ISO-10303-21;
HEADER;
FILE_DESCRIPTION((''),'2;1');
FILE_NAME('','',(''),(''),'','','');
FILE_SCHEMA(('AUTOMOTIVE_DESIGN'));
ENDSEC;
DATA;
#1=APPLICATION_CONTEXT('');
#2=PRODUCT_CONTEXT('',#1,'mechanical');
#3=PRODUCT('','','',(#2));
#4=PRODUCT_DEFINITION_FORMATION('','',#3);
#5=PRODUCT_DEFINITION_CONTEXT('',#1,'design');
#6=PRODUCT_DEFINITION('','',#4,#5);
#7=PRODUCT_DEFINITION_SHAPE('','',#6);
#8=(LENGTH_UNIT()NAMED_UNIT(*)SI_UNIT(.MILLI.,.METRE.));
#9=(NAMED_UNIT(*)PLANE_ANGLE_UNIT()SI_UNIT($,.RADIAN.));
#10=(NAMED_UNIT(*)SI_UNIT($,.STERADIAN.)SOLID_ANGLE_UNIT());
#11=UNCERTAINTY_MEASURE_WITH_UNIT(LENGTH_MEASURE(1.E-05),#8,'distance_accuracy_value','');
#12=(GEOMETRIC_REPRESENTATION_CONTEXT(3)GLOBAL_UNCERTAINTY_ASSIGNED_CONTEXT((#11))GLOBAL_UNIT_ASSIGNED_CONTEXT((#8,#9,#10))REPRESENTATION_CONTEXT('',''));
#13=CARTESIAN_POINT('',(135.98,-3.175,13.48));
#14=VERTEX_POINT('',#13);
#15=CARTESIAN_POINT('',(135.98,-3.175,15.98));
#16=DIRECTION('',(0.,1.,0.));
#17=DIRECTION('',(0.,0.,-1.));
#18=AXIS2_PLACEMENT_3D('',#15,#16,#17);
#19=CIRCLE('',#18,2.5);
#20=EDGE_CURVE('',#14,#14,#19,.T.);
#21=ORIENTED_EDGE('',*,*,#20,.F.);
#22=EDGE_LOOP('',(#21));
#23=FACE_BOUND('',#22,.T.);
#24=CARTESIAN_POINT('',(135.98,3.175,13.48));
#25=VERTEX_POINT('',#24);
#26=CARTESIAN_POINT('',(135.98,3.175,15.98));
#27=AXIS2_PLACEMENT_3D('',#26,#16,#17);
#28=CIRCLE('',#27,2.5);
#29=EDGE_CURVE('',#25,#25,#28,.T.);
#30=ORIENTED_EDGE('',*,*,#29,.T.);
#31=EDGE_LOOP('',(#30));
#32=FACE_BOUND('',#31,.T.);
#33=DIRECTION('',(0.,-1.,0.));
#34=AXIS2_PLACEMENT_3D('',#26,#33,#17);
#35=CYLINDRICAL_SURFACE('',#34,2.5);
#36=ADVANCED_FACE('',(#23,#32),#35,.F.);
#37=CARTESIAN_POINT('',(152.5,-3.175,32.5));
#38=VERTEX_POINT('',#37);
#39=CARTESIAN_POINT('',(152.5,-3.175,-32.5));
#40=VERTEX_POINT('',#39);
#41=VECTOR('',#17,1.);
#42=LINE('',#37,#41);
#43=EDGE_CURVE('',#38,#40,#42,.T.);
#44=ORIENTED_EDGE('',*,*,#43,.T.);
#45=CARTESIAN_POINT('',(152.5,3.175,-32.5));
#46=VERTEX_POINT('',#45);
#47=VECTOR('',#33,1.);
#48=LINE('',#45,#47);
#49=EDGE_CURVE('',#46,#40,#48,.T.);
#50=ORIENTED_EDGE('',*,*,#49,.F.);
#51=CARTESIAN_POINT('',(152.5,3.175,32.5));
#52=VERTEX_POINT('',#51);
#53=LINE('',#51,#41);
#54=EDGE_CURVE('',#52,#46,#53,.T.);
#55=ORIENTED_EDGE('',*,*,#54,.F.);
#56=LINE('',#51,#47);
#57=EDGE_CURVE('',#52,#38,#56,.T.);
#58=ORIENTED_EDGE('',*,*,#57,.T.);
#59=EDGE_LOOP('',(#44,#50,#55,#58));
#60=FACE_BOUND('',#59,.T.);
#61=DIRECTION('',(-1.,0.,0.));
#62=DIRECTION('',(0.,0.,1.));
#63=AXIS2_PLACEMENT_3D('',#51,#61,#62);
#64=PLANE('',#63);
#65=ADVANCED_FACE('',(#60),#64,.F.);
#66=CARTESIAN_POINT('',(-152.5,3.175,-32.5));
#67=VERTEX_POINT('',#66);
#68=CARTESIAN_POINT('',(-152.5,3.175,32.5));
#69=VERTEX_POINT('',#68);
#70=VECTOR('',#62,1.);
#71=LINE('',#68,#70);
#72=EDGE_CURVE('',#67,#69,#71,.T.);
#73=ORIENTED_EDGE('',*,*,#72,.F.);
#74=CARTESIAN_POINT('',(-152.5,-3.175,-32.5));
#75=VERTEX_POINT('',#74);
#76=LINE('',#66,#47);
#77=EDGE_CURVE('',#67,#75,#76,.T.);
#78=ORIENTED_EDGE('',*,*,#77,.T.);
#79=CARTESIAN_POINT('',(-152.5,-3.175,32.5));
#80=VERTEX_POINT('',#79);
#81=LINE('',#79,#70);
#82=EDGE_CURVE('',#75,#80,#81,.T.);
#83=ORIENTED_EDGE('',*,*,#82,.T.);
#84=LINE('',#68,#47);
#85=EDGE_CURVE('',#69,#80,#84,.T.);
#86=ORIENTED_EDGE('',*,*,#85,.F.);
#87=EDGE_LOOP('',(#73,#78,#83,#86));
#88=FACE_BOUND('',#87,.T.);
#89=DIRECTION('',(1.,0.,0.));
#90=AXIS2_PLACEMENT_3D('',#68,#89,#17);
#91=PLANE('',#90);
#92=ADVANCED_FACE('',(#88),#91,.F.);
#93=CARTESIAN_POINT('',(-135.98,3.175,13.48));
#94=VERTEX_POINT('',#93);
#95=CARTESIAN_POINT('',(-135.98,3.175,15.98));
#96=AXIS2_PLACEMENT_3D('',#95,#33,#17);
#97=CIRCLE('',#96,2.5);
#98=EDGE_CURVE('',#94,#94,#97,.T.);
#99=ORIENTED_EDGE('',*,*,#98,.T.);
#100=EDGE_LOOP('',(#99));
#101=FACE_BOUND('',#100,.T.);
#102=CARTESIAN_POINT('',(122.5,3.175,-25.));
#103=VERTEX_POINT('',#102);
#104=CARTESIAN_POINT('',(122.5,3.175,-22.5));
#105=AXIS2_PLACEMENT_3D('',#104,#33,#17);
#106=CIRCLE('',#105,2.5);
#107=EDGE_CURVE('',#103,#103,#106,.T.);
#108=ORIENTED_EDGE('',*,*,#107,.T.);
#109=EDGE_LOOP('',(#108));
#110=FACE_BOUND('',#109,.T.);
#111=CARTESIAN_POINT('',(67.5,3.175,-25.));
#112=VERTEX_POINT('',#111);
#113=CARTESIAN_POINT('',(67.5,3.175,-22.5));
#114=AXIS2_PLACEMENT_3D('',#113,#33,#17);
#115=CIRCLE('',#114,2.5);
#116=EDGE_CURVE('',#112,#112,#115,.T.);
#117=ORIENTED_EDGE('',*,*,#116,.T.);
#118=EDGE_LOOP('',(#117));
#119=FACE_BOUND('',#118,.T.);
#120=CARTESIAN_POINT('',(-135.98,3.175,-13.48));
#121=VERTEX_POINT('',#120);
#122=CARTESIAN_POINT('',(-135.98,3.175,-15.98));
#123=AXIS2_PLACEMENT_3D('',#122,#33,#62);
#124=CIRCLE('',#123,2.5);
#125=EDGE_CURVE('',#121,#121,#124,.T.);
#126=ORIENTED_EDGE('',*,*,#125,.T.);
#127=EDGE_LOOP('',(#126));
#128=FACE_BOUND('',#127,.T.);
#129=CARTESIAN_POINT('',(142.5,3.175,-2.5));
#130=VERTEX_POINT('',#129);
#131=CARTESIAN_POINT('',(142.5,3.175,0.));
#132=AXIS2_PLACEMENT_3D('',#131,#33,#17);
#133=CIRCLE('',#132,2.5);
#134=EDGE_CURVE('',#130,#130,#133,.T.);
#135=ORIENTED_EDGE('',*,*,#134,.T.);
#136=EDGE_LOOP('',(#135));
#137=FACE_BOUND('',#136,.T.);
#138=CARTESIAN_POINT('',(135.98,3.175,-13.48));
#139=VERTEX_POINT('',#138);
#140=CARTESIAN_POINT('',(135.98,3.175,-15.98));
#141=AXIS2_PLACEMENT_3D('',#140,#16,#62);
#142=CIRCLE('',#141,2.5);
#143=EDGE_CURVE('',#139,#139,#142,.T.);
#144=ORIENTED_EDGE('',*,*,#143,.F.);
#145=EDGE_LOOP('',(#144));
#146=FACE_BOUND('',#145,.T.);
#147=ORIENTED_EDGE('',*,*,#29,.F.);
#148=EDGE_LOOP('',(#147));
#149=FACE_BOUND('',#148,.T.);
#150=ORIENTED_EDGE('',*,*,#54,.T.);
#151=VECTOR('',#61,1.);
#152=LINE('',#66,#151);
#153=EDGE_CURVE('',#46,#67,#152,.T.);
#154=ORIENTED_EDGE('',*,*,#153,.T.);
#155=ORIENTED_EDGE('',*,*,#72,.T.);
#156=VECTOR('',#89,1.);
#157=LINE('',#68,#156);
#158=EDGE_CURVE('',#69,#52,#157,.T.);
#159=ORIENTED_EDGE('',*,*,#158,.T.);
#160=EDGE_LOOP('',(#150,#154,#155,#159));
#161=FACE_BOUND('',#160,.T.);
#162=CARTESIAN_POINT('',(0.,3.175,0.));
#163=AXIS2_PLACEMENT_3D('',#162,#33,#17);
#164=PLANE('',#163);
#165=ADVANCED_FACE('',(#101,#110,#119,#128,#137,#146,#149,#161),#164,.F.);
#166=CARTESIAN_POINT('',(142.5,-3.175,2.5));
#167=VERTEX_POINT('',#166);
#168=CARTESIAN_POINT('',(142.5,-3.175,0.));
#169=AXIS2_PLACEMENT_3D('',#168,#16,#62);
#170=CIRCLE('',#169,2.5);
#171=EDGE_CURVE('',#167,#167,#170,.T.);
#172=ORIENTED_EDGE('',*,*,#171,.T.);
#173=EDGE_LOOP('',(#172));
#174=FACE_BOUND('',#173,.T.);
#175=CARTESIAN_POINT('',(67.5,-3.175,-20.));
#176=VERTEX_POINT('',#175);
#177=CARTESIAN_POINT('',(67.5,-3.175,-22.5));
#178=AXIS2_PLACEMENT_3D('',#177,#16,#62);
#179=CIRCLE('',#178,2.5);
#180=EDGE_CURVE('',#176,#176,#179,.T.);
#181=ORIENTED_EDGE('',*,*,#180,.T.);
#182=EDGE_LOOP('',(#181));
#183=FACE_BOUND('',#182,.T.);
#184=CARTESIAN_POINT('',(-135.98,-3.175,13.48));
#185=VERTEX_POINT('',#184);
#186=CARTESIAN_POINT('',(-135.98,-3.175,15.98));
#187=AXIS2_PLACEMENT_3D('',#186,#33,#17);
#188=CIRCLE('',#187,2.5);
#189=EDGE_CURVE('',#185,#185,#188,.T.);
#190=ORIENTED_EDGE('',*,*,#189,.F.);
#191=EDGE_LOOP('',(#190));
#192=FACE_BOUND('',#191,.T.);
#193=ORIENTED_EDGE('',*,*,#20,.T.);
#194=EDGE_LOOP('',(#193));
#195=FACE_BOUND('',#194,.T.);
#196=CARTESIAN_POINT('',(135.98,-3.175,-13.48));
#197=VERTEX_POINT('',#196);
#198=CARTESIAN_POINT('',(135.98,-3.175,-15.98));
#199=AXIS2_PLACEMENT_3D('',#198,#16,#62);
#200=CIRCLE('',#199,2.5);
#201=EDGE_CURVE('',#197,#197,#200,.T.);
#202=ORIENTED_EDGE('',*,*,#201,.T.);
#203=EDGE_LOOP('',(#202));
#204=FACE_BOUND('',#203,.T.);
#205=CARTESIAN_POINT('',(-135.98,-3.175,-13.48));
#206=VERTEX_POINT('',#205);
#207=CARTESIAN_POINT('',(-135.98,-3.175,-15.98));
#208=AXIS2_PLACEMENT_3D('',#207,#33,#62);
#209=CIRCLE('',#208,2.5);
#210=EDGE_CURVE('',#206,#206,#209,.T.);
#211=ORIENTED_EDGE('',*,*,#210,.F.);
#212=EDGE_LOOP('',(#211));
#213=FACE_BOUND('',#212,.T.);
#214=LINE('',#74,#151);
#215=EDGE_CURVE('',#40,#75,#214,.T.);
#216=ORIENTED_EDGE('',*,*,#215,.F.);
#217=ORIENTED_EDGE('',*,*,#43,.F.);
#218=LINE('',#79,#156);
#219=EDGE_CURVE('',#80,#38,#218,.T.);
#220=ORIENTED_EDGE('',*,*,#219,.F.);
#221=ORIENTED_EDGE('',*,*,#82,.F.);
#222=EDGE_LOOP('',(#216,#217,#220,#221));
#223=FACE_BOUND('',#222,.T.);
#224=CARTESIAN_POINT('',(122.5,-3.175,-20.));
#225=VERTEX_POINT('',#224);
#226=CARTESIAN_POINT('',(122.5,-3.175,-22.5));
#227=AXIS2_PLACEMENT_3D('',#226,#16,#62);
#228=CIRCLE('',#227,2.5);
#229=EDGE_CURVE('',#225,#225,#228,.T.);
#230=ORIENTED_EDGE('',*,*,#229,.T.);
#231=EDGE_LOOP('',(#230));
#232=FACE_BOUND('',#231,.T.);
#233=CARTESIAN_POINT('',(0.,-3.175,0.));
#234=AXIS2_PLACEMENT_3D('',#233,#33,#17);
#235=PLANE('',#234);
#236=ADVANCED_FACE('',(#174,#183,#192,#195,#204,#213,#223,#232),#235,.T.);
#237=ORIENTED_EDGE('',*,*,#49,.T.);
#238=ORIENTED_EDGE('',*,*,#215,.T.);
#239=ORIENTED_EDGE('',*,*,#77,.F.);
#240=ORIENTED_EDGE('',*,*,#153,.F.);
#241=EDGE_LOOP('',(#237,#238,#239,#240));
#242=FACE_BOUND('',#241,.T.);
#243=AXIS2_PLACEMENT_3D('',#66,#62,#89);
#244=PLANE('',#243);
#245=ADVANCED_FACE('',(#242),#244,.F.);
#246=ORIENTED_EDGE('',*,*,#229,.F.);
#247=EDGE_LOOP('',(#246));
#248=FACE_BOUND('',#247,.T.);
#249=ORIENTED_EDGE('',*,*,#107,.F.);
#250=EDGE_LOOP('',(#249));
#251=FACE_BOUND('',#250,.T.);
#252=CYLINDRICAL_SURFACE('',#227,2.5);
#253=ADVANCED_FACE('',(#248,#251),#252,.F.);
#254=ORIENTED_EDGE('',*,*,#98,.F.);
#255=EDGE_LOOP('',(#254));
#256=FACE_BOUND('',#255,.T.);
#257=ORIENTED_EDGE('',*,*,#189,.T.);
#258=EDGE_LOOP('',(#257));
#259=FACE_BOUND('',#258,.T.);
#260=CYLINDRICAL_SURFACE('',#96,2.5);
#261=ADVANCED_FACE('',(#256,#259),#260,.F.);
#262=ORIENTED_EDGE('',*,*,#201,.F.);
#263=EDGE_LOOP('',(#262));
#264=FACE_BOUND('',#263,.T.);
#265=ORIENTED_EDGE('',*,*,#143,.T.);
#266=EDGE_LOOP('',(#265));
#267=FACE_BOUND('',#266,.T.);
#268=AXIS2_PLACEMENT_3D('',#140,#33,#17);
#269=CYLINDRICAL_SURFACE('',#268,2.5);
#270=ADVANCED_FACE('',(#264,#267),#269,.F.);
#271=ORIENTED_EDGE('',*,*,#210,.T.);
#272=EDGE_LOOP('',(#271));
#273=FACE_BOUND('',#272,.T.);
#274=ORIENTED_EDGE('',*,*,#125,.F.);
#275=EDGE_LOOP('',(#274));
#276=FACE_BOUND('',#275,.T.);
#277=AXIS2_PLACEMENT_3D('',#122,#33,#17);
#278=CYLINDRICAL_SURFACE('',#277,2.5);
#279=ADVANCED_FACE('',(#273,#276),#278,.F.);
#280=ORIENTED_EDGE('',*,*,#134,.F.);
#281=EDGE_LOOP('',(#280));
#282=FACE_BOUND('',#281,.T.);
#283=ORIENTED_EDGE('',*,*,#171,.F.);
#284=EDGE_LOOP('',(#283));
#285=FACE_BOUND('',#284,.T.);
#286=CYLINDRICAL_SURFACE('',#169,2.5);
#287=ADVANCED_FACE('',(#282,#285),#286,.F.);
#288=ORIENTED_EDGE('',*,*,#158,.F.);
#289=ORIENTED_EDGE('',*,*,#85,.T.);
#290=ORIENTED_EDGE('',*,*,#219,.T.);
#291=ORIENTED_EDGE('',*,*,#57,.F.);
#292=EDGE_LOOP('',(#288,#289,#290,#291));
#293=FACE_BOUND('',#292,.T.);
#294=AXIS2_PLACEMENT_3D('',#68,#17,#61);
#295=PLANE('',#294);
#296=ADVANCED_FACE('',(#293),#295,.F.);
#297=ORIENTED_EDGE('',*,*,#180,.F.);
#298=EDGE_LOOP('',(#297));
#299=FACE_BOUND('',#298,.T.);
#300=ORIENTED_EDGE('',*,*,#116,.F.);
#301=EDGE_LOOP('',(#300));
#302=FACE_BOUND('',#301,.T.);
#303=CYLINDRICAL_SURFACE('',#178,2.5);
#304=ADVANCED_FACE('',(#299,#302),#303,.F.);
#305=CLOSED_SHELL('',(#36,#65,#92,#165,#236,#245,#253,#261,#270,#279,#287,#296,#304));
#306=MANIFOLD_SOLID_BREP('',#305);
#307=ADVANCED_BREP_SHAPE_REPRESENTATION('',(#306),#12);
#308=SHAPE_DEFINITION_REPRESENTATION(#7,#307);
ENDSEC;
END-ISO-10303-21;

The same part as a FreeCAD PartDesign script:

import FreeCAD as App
import Part
import Sketcher

V = App.Vector

doc = App.newDocument("Part")
params = doc.addObject("Spreadsheet::Sheet", "Params")
for row, (alias, value) in enumerate([
    ("sketch1_width", "305 mm"),
    ("sketch1_height", "65 mm"),
    ("pad1_length", "6.35 mm"),
    ("sketch2_diameter", "5 mm"),
    ("pocket1_length", "6.35 mm"),
    ("sketch3_diameter", "5 mm"),
], start=1):
    params.set(f"A{row}", alias)
    params.set(f"B{row}", "=" + value)
    params.setAlias(f"B{row}", alias)

body = doc.addObject("PartDesign::Body", "Body")

# Sketch on XZ plane
sketch1 = doc.addObject("Sketcher::SketchObject", "Sketch")
body.addObject(sketch1)
sketch1.AttachmentSupport = (doc.XZ_Plane, [""])
sketch1.MapMode = "FlatFace"
sketch1.addGeometry(Part.LineSegment(V(-152.5, -32.5, 0), V(-152.5, 32.5, 0)), False)
sketch1.addGeometry(Part.LineSegment(V(-152.5, 32.5, 0), V(152.5, 32.5, 0)), False)
sketch1.addGeometry(Part.LineSegment(V(152.5, 32.5, 0), V(152.5, -32.5, 0)), False)
sketch1.addGeometry(Part.LineSegment(V(152.5, -32.5, 0), V(-152.5, -32.5, 0)), False)
sketch1.addConstraint(Sketcher.Constraint("Coincident", 0, 2, 1, 1))
sketch1.addConstraint(Sketcher.Constraint("Coincident", 1, 2, 2, 1))
sketch1.addConstraint(Sketcher.Constraint("Coincident", 2, 2, 3, 1))
sketch1.addConstraint(Sketcher.Constraint("Coincident", 3, 2, 0, 1))
sketch1.addConstraint(Sketcher.Constraint("Vertical", 0))
sketch1.addConstraint(Sketcher.Constraint("Horizontal", 1))
sketch1.addConstraint(Sketcher.Constraint("Vertical", 2))
sketch1.addConstraint(Sketcher.Constraint("Horizontal", 3))
sketch1.addConstraint(Sketcher.Constraint("Symmetric", 0, 2, 2, 2, -1, 1))
sketch1.addConstraint(Sketcher.Constraint("DistanceX", 1, 1, 1, 2, 305.0))
sketch1.addConstraint(Sketcher.Constraint("DistanceY", 0, 1, 0, 2, 65.0))
sketch1.setExpression("Constraints[9]", "Params.sketch1_width")
sketch1.setExpression("Constraints[10]", "Params.sketch1_height")
pad1 = doc.addObject("PartDesign::Pad", "Pad")
body.addObject(pad1)
pad1.Profile = sketch1
pad1.setExpression("Length", "Params.pad1_length")
pad1.Midplane = True

# Sketch on XZ plane
sketch2 = doc.addObject("Sketcher::SketchObject", "Sketch001")
body.addObject(sketch2)
sketch2.AttachmentSupport = (doc.XZ_Plane, [""])
sketch2.MapMode = "FlatFace"
sketch2.AttachmentOffset = App.Placement(V(0, 0, -3.175), App.Rotation())
sketch2.addGeometry(Part.Circle(V(-135.98, 15.98, 0), V(0, 0, 1), 2.5), False)
sketch2.addGeometry(Part.Circle(V(-135.98, -15.98, 0), V(0, 0, 1), 2.5), False)
sketch2.addConstraint(Sketcher.Constraint("Equal", 0, 1))
sketch2.addConstraint(Sketcher.Constraint("Symmetric", 0, 3, 1, 3, -1))
sketch2.addConstraint(Sketcher.Constraint("Diameter", 0, 5.0))
sketch2.addConstraint(Sketcher.Constraint("DistanceX", 0, 3, -1, 1, 135.98))
sketch2.addConstraint(Sketcher.Constraint("DistanceY", -1, 1, 0, 3, 15.98))
sketch2.setExpression("Constraints[2]", "Params.sketch2_diameter")
pocket1 = doc.addObject("PartDesign::Pocket", "Pocket")
body.addObject(pocket1)
pocket1.Profile = sketch2
pocket1.setExpression("Length", "Params.pocket1_length")
pocket1.Reversed = True
doc.recompute()

mirrored = doc.addObject("PartDesign::Mirrored", "Mirrored")
body.addObject(mirrored)
mirrored.Originals = [pocket1]
mirrored.MirrorPlane = (doc.YZ_Plane, [""])
body.Tip = mirrored

# Sketch on XZ plane
sketch3 = doc.addObject("Sketcher::SketchObject", "Sketch002")
body.addObject(sketch3)
sketch3.AttachmentSupport = (doc.XZ_Plane, [""])
sketch3.MapMode = "FlatFace"
sketch3.AttachmentOffset = App.Placement(V(0, 0, -3.175), App.Rotation())
sketch3.addGeometry(Part.Circle(V(122.5, -22.5, 0), V(0, 0, 1), 2.5), False)
sketch3.addGeometry(Part.Circle(V(67.5, -22.5, 0), V(0, 0, 1), 2.5), False)
sketch3.addGeometry(Part.Circle(V(142.5, 0, 0), V(0, 0, 1), 2.5), False)
sketch3.addConstraint(Sketcher.Constraint("Equal", 0, 1))
sketch3.addConstraint(Sketcher.Constraint("Equal", 1, 2))
sketch3.addConstraint(Sketcher.Constraint("PointOnObject", 2, 3, -1))
sketch3.addConstraint(Sketcher.Constraint("Horizontal", 0, 3, 1, 3))
sketch3.addConstraint(Sketcher.Constraint("Diameter", 0, 5.0))
sketch3.addConstraint(Sketcher.Constraint("DistanceX", 1, 3, 0, 3, 55.0))
sketch3.addConstraint(Sketcher.Constraint("DistanceX", 0, 3, 2, 3, 20.0))
sketch3.addConstraint(Sketcher.Constraint("DistanceX", -1, 1, 0, 3, 122.5))
sketch3.addConstraint(Sketcher.Constraint("DistanceY", 0, 3, -1, 1, 22.5))
sketch3.setExpression("Constraints[4]", "Params.sketch3_diameter")
pocket2 = doc.addObject("PartDesign::Pocket", "Pocket001")
body.addObject(pocket2)
pocket2.Profile = sketch3
pocket2.Type = "ThroughAll"
pocket2.Midplane = True

doc.recompute()
